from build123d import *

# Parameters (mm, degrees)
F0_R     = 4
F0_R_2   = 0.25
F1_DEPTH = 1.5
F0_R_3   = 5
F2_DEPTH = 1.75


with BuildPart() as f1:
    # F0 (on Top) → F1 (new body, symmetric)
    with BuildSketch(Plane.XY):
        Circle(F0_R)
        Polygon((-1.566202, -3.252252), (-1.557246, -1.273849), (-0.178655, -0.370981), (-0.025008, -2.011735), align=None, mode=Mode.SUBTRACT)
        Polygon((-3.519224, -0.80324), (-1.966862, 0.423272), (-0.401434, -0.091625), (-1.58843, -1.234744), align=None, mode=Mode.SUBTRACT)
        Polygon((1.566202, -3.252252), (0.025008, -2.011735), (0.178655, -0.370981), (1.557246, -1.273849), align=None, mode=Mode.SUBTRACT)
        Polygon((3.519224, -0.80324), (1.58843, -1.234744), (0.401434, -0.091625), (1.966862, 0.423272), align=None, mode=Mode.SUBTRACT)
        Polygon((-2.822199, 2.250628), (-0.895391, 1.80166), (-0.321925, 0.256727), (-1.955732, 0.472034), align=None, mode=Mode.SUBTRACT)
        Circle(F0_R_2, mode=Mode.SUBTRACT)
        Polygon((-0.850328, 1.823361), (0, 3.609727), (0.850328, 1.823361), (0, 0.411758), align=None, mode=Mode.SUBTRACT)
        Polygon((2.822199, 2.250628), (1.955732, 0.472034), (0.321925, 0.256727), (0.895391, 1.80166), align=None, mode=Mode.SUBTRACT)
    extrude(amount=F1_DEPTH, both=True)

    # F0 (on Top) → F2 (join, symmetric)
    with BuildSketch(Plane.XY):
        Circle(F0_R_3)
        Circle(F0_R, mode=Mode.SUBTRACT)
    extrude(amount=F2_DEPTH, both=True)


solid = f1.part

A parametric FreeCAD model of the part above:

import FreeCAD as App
import Part
import Sketcher

V = App.Vector

doc = App.newDocument("Part")
body = doc.addObject("PartDesign::Body", "Body")

# Sketch on XY plane
sketch1 = body.newObject("Sketcher::SketchObject", "Sketch")
sketch1.AttachmentSupport = (doc.getObject("XY_Plane"), [""])
sketch1.MapMode = "FlatFace"
sketch1.addGeometry([
    Part.Circle(V(0, 0, 0), V(0, 0, 1), 4),  # 0
    Part.LineSegment(V(-0.03, -2.01, 0), V(-1.57, -3.25, 0)),  # 1
    Part.LineSegment(V(-1.57, -3.25, 0), V(-1.56, -1.27, 0)),  # 2
    Part.LineSegment(V(-1.56, -1.27, 0), V(-0.18, -0.37, 0)),  # 3
    Part.LineSegment(V(-0.18, -0.37, 0), V(-0.03, -2.01, 0)),  # 4
    Part.LineSegment(V(-1.59, -1.23, 0), V(-3.52, -0.8, 0)),  # 5
    Part.LineSegment(V(-3.52, -0.8, 0), V(-1.97, 0.42, 0)),  # 6
    Part.LineSegment(V(-1.97, 0.42, 0), V(-0.4, -0.09, 0)),  # 7
    Part.LineSegment(V(-0.4, -0.09, 0), V(-1.59, -1.23, 0)),  # 8
    Part.LineSegment(V(1.56, -1.27, 0), V(1.57, -3.25, 0)),  # 9
    Part.LineSegment(V(1.57, -3.25, 0), V(0.03, -2.01, 0)),  # 10
    Part.LineSegment(V(0.03, -2.01, 0), V(0.18, -0.37, 0)),  # 11
    Part.LineSegment(V(0.18, -0.37, 0), V(1.56, -1.27, 0)),  # 12
    Part.Circle(V(0, 0, 0), V(0, 0, 1), 0.25),  # 13
    Part.LineSegment(V(1.97, 0.42, 0), V(3.52, -0.8, 0)),  # 14
    Part.LineSegment(V(3.52, -0.8, 0), V(1.59, -1.23, 0)),  # 15
    Part.LineSegment(V(1.59, -1.23, 0), V(0.4, -0.09, 0)),  # 16
    Part.LineSegment(V(0.4, -0.09, 0), V(1.97, 0.42, 0)),  # 17
    Part.LineSegment(V(-1.96, 0.47, 0), V(-2.82, 2.25, 0)),  # 18
    Part.LineSegment(V(-2.82, 2.25, 0), V(-0.9, 1.8, 0)),  # 19
    Part.LineSegment(V(-0.9, 1.8, 0), V(-0.32, 0.26, 0)),  # 20
    Part.LineSegment(V(-0.32, 0.26, 0), V(-1.96, 0.47, 0)),  # 21
    Part.LineSegment(V(0.9, 1.8, 0), V(2.82, 2.25, 0)),  # 22
    Part.LineSegment(V(2.82, 2.25, 0), V(1.96, 0.47, 0)),  # 23
    Part.LineSegment(V(1.96, 0.47, 0), V(0.32, 0.26, 0)),  # 24
    Part.LineSegment(V(0.32, 0.26, 0), V(0.9, 1.8, 0)),  # 25
    Part.LineSegment(V(0, 0.41, 0), V(-0.85, 1.82, 0)),  # 26
    Part.LineSegment(V(-0.85, 1.82, 0), V(0, 3.61, 0)),  # 27
    Part.LineSegment(V(0, 3.61, 0), V(0.85, 1.82, 0)),  # 28
    Part.LineSegment(V(0.85, 1.82, 0), V(0, 0.41, 0)),  # 29
], False)
sketch1.addConstraint([
    Sketcher.Constraint("Coincident", 1, 2, 2, 1),
    Sketcher.Constraint("Coincident", 2, 2, 3, 1),
    Sketcher.Constraint("Coincident", 3, 2, 4, 1),
    Sketcher.Constraint("Coincident", 4, 2, 1, 1),
    Sketcher.Constraint("Coincident", 5, 2, 6, 1),
    Sketcher.Constraint("Coincident", 6, 2, 7, 1),
    Sketcher.Constraint("Coincident", 7, 2, 8, 1),
    Sketcher.Constraint("Coincident", 8, 2, 5, 1),
    Sketcher.Constraint("Coincident", 9, 2, 10, 1),
    Sketcher.Constraint("Coincident", 10, 2, 11, 1),
    Sketcher.Constraint("Coincident", 11, 2, 12, 1),
    Sketcher.Constraint("Coincident", 12, 2, 9, 1),
    Sketcher.Constraint("Coincident", 14, 2, 15, 1),
    Sketcher.Constraint("Coincident", 15, 2, 16, 1),
    Sketcher.Constraint("Coincident", 16, 2, 17, 1),
    Sketcher.Constraint("Coincident", 17, 2, 14, 1),
    Sketcher.Constraint("Coincident", 18, 2, 19, 1),
    Sketcher.Constraint("Coincident", 19, 2, 20, 1),
    Sketcher.Constraint("Coincident", 20, 2, 21, 1),
    Sketcher.Constraint("Coincident", 21, 2, 18, 1),
    Sketcher.Constraint("Coincident", 22, 2, 23, 1),
    Sketcher.Constraint("Coincident", 23, 2, 24, 1),
    Sketcher.Constraint("Coincident", 24, 2, 25, 1),
    Sketcher.Constraint("Coincident", 25, 2, 22, 1),
    Sketcher.Constraint("Coincident", 26, 2, 27, 1),
    Sketcher.Constraint("Coincident", 27, 2, 28, 1),
    Sketcher.Constraint("Coincident", 28, 2, 29, 1),
    Sketcher.Constraint("Coincident", 29, 2, 26, 1),
    Sketcher.Constraint("Coincident", 0, 3, -1, 1),
    Sketcher.Constraint("Coincident", 13, 3, -1, 1),
    Sketcher.Constraint("Symmetric", 1, 2, 9, 2, -2),
    Sketcher.Constraint("Symmetric", 4, 2, 10, 2, -2),
    Sketcher.Constraint("Symmetric", 3, 2, 11, 2, -2),
    Sketcher.Constraint("Symmetric", 2, 2, 12, 2, -2),
    Sketcher.Constraint("Symmetric", 5, 2, 14, 2, -2),
    Sketcher.Constraint("Symmetric", 8, 2, 15, 2, -2),
    Sketcher.Constraint("Symmetric", 7, 2, 16, 2, -2),
    Sketcher.Constraint("Symmetric", 6, 2, 17, 2, -2),
    Sketcher.Constraint("Symmetric", 18, 2, 22, 2, -2),
    Sketcher.Constraint("Symmetric", 21, 2, 23, 2, -2),
    Sketcher.Constraint("Symmetric", 20, 2, 24, 2, -2),
    Sketcher.Constraint("Symmetric", 19, 2, 25, 2, -2),
    Sketcher.Constraint("Symmetric", 26, 2, 28, 2, -2),
    Sketcher.Constraint("PointOnObject", 27, 2, -2),
    Sketcher.Constraint("PointOnObject", 29, 2, -2),
    Sketcher.Constraint("Equal", 1, 2),
    Sketcher.Constraint("Equal", 3, 4),
    Sketcher.Constraint("Equal", 2, 5),
    Sketcher.Constraint("Equal", 5, 6),
    Sketcher.Constraint("Equal", 4, 7),
    Sketcher.Constraint("Equal", 7, 8),
    Sketcher.Constraint("Equal", 15, 18),
    Sketcher.Constraint("Equal", 18, 19),
    Sketcher.Constraint("Equal", 17, 20),
    Sketcher.Constraint("Equal", 20, 21),
    Sketcher.Constraint("Equal", 25, 26),
    Sketcher.Constraint("Equal", 23, 27),
    Sketcher.Constraint("Diameter", 0, 8.0),
    Sketcher.Constraint("Diameter", 13, 0.5),
    Sketcher.Constraint("DistanceX", 18, 2, -1, 1, 2.822199),
    Sketcher.Constraint("DistanceX", 3, 2, 12, 2, 1.735901),
    Sketcher.Constraint("DistanceY", 19, 2, 26, 2, 0.021701),
    Sketcher.Constraint("DistanceY", 18, 2, 27, 2, 1.359099),
    Sketcher.Constraint("DistanceY", 1, 2, -1, 1, 3.252252),
    Sketcher.Constraint("DistanceY", 2, 2, -1, 1, 1.273849),
    Sketcher.Constraint("DistanceY", 3, 2, -1, 1, 0.370981),
    Sketcher.Constraint("DistanceY", 5, 2, -1, 1, 0.80324),
    Sketcher.Constraint("DistanceX", 8, 2, -1, 1, 1.58843),
    Sketcher.Constraint("DistanceX", 19, 2, -1, 1, 0.895391),
    Sketcher.Constraint("DistanceY", -1, 1, 19, 2, 1.80166),
    Sketcher.Constraint("DistanceX", 2, 2, 3, 2, 1.378591),
    Sketcher.Constraint("DistanceX", 5, 2, 1, 2, 1.953022),
    Sketcher.Constraint("DistanceX", 5, 2, 3, 2, 3.340569),
    Sketcher.Constraint("DistanceY", 2, 2, 6, 2, 1.697121),
    Sketcher.Constraint("DistanceX", 7, 2, 20, 2, 0.079509),
])
pad1 = body.newObject("PartDesign::Pad", "Pad")
pad1.Profile = sketch1
pad1.Length = 3
pad1.Midplane = True

# Sketch on XY plane
sketch2 = body.newObject("Sketcher::SketchObject", "Sketch001")
sketch2.AttachmentSupport = (doc.getObject("XY_Plane"), [""])
sketch2.MapMode = "FlatFace"
sketch2.addGeometry([
    Part.Circle(V(0, 0, 0), V(0, 0, 1), 5),
    Part.Circle(V(0, 0, 0), V(0, 0, 1), 4),
], False)
sketch2.addConstraint([
    Sketcher.Constraint("Coincident", 0, 3, -1, 1),
    Sketcher.Constraint("Coincident", 1, 3, -1, 1),
    Sketcher.Constraint("Diameter", 0, 10.0),
    Sketcher.Constraint("Diameter", 1, 8.0),
])
pad2 = body.newObject("PartDesign::Pad", "Pad001")
pad2.Profile = sketch2
pad2.Length = 3.5
pad2.Midplane = True

doc.recompute()
